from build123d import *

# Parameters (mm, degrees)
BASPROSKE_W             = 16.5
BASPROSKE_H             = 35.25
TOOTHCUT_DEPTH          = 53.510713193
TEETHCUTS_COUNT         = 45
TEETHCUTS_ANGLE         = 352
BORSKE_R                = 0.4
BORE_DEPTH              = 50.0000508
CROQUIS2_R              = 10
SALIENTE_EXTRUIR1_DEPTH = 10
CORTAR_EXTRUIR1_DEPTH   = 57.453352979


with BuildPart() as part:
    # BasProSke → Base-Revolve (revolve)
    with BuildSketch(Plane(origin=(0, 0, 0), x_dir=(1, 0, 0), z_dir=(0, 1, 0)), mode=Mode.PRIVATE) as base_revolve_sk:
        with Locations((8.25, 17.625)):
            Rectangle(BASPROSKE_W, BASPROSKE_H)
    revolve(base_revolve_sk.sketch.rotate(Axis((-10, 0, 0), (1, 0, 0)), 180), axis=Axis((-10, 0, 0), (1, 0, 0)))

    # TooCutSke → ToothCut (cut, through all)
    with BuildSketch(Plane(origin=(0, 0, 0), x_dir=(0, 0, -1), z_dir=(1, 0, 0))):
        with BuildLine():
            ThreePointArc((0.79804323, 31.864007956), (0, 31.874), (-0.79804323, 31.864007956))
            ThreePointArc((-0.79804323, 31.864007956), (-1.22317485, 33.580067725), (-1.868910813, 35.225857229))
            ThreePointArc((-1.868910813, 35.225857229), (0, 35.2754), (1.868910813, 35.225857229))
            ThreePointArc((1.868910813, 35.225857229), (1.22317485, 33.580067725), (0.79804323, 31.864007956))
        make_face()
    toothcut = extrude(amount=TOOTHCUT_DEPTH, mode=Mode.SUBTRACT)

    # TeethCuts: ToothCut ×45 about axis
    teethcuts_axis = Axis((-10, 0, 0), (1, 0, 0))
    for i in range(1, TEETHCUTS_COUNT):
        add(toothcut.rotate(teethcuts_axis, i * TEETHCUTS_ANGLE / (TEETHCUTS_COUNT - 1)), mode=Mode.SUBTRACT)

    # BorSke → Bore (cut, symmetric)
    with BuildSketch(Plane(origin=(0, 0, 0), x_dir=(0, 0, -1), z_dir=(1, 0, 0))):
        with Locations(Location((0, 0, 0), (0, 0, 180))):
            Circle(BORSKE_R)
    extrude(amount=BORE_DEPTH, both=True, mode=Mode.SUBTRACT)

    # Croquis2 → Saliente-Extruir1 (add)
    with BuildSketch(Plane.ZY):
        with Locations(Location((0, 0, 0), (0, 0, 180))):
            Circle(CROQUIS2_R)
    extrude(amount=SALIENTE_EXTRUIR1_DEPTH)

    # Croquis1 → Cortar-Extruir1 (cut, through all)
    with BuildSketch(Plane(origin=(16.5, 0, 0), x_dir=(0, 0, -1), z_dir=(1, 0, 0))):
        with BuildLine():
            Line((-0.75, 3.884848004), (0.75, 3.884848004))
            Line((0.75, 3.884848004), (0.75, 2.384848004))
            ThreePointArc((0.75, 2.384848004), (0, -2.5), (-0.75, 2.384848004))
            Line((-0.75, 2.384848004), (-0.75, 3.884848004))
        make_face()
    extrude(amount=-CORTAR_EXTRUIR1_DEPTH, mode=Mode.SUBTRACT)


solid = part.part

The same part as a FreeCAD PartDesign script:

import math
import FreeCAD as App
import Part
import Sketcher
from FreeCAD import Vector
Q = App.Units.Quantity

doc = App.newDocument("Part")
params = doc.addObject("Spreadsheet::Sheet", "Params")
for row, (alias, value) in enumerate([
    ("sketch1_width", "16.5 mm"),
    ("sketch1_height", "35.25 mm"),
    ("revolution_angle", "360 deg"),
    ("sketch2_radius", "13.5 mm"),
    ("sketch3_diameter", "0.8 mm"),
    ("pocket2_length", "100.000102 mm"),
    ("sketch4_diameter", "20 mm"),
    ("pad1_length", "10 mm"),
    ("sketch5_radius", "2.5 mm"),
    ("sketch5_width", "1.5 mm"),
], start=1):
    params.set(f"A{row}", alias)
    params.set(f"B{row}", "=" + value)
    params.setAlias(f"B{row}", alias)

body = doc.addObject("PartDesign::Body", "Body")

sketch1 = body.newObject("Sketcher::SketchObject", "Sketch")
sketch1.AttachmentSupport = (doc.getObject("XZ_Plane"), [""])
sketch1.MapMode = "FlatFace"
sketch1.addGeometry([
    Part.LineSegment(Vector(0, -35, 0), Vector(0, 0, 0)),
    Part.LineSegment(Vector(0, 0, 0), Vector(16, 0, 0)),
    Part.LineSegment(Vector(16, 0, 0), Vector(16, -35, 0)),
    Part.LineSegment(Vector(16, -35, 0), Vector(0, -35, 0)),
], False)
sketch1.addConstraint([
    Sketcher.Constraint("Coincident", 0, 2, 1, 1),
    Sketcher.Constraint("Coincident", 1, 2, 2, 1),
    Sketcher.Constraint("Coincident", 2, 2, 3, 1),
    Sketcher.Constraint("Coincident", 3, 2, 0, 1),
    Sketcher.Constraint("Vertical", 0),
    Sketcher.Constraint("Horizontal", 1),
    Sketcher.Constraint("Vertical", 2),
    Sketcher.Constraint("Horizontal", 3),
    Sketcher.Constraint("Coincident", 0, 2, -1, 1),
    Sketcher.Constraint("DistanceX", 1, 1, 1, 2, Q("16.5 mm")),
    Sketcher.Constraint("DistanceY", 0, 1, 0, 2, Q("35.25 mm")),
])
sketch1.setExpression("Constraints[9]", "Params.sketch1_width")
sketch1.setExpression("Constraints[10]", "Params.sketch1_height")
revolution = body.newObject("PartDesign::Revolution", "Revolution")
revolution.Profile = sketch1
revolution.ReferenceAxis = (sketch1, ["H_Axis"])
revolution.setExpression("Angle", "Params.revolution_angle")

sketch2 = body.newObject("Sketcher::SketchObject", "Sketch001")
sketch2.AttachmentSupport = (doc.getObject("YZ_Plane"), [""])
sketch2.MapMode = "FlatFace"
sketch2.addGeometry([
    Part.ArcOfCircle(Part.Circle(Vector(0, 0, 0), Vector(0, 0, 1), 31.9), math.radians(-1.43), math.radians(1.43)),
    Part.ArcOfCircle(Part.Circle(Vector(29.5, -14.1, 0), Vector(0, 0, 1), 13.5), math.radians(64.82), math.radians(79.84)),
    Part.ArcOfCircle(Part.Circle(Vector(0, 0, 0), Vector(0, 0, 1), 35.3), math.radians(-3.04), math.radians(3.04)),
    Part.ArcOfCircle(Part.Circle(Vector(29.5, 14.1, 0), Vector(0, 0, 1), 13.5), math.radians(-79.84), math.radians(-64.82)),
], False)
sketch2.addConstraint([
    Sketcher.Constraint("Coincident", 0, 1, 1, 2),
    Sketcher.Constraint("Coincident", 1, 1, 2, 1),
    Sketcher.Constraint("Coincident", 2, 2, 3, 2),
    Sketcher.Constraint("Coincident", 3, 1, 0, 2),
    Sketcher.Constraint("Coincident", 0, 3, -1, 1),
    Sketcher.Constraint("Coincident", 2, 3, -1, 1),
    Sketcher.Constraint("Equal", 1, 3),
    Sketcher.Constraint("Symmetric", 1, 3, 3, 3, -1),
    Sketcher.Constraint("Radius", 1, Q("13.5 mm")),
    Sketcher.Constraint("Radius", 0, Q("31.874001 mm")),
    Sketcher.Constraint("Radius", 2, Q("35.2754 mm")),
    Sketcher.Constraint("DistanceY", 0, 1, 3, 3, Q("14.884402 mm")),
    Sketcher.Constraint("DistanceX", -1, 1, 1, 3, Q("29.48269 mm")),
])
sketch2.setExpression("Constraints[8]", "Params.sketch2_radius")
pocket1 = body.newObject("PartDesign::Pocket", "Pocket")
pocket1.Profile = sketch2
pocket1.Type = "ThroughAll"
pocket1.Reversed = True
doc.recompute()

polarpattern = body.newObject("PartDesign::PolarPattern", "PolarPattern")
polarpattern.Originals = [pocket1]
polarpattern.Axis = (doc.getObject("X_Axis"), [""])
polarpattern.Angle = 360
polarpattern.Occurrences = 45
body.Tip = polarpattern

sketch3 = body.newObject("Sketcher::SketchObject", "Sketch002")
sketch3.AttachmentSupport = (doc.getObject("YZ_Plane"), [""])
sketch3.MapMode = "FlatFace"
sketch3.addGeometry(Part.Circle(Vector(0, 0, 0), Vector(0, 0, 1), 0.4), False)
sketch3.addConstraint([
    Sketcher.Constraint("Coincident", 0, 3, -1, 1),
    Sketcher.Constraint("Diameter", 0, Q("0.8 mm")),
])
sketch3.setExpression("Constraints[1]", "Params.sketch3_diameter")
pocket2 = body.newObject("PartDesign::Pocket", "Pocket001")
pocket2.Profile = sketch3
pocket2.setExpression("Length", "Params.pocket2_length")
pocket2.Midplane = True

sketch4 = body.newObject("Sketcher::SketchObject", "Sketch003")
sketch4.AttachmentSupport = (doc.getObject("YZ_Plane"), [""])
sketch4.MapMode = "FlatFace"
sketch4.addGeometry(Part.Circle(Vector(0, 0, 0), Vector(0, 0, 1), 10), False)
sketch4.addConstraint([
    Sketcher.Constraint("Coincident", 0, 3, -1, 1),
    Sketcher.Constraint("Diameter", 0, Q("20 mm")),
])
sketch4.setExpression("Constraints[1]", "Params.sketch4_diameter")
pad1 = body.newObject("PartDesign::Pad", "Pad")
pad1.Profile = sketch4
pad1.setExpression("Length", "Params.pad1_length")
pad1.Reversed = True

sketch5 = body.newObject("Sketcher::SketchObject", "Sketch004")
sketch5.AttachmentSupport = (doc.getObject("YZ_Plane"), [""])
sketch5.MapMode = "FlatFace"
sketch5.AttachmentOffset = App.Placement(Vector(0, 0, 16.5), App.Rotation())
sketch5.addGeometry([
    Part.LineSegment(Vector(3.9, -0.8, 0), Vector(3.9, 0.8, 0)),
    Part.LineSegment(Vector(3.9, 0.8, 0), Vector(2.4, 0.8, 0)),
    Part.ArcOfCircle(Part.Circle(Vector(0, 0, 0), Vector(0, 0, 1), 2.5), math.radians(17), math.radians(343)),
    Part.LineSegment(Vector(2.4, -0.8, 0), Vector(3.9, -0.8, 0)),
], False)
sketch5.addConstraint([
    Sketcher.Constraint("Coincident", 0, 2, 1, 1),
    Sketcher.Constraint("Coincident", 1, 2, 2, 1),
    Sketcher.Constraint("Coincident", 2, 2, 3, 1),
    Sketcher.Constraint("Coincident", 3, 2, 0, 1),
    Sketcher.Constraint("Vertical", 0),
    Sketcher.Constraint("Horizontal", 1),
    Sketcher.Constraint("Horizontal", 3),
    Sketcher.Constraint("Coincident", 2, 3, -1, 1),
    Sketcher.Constraint("Vertical", 1, 2, 2, 2),
    Sketcher.Constraint("Equal", 3, 0),
    Sketcher.Constraint("Radius", 2, Q("2.5 mm")),
    Sketcher.Constraint("DistanceX", 1, 2, 1, 1, Q("1.5 mm")),
])
sketch5.setExpression("Constraints[10]", "Params.sketch5_radius")
sketch5.setExpression("Constraints[11]", "Params.sketch5_width")
pocket3 = body.newObject("PartDesign::Pocket", "Pocket002")
pocket3.Profile = sketch5
pocket3.Type = "ThroughAll"

doc.recompute()
